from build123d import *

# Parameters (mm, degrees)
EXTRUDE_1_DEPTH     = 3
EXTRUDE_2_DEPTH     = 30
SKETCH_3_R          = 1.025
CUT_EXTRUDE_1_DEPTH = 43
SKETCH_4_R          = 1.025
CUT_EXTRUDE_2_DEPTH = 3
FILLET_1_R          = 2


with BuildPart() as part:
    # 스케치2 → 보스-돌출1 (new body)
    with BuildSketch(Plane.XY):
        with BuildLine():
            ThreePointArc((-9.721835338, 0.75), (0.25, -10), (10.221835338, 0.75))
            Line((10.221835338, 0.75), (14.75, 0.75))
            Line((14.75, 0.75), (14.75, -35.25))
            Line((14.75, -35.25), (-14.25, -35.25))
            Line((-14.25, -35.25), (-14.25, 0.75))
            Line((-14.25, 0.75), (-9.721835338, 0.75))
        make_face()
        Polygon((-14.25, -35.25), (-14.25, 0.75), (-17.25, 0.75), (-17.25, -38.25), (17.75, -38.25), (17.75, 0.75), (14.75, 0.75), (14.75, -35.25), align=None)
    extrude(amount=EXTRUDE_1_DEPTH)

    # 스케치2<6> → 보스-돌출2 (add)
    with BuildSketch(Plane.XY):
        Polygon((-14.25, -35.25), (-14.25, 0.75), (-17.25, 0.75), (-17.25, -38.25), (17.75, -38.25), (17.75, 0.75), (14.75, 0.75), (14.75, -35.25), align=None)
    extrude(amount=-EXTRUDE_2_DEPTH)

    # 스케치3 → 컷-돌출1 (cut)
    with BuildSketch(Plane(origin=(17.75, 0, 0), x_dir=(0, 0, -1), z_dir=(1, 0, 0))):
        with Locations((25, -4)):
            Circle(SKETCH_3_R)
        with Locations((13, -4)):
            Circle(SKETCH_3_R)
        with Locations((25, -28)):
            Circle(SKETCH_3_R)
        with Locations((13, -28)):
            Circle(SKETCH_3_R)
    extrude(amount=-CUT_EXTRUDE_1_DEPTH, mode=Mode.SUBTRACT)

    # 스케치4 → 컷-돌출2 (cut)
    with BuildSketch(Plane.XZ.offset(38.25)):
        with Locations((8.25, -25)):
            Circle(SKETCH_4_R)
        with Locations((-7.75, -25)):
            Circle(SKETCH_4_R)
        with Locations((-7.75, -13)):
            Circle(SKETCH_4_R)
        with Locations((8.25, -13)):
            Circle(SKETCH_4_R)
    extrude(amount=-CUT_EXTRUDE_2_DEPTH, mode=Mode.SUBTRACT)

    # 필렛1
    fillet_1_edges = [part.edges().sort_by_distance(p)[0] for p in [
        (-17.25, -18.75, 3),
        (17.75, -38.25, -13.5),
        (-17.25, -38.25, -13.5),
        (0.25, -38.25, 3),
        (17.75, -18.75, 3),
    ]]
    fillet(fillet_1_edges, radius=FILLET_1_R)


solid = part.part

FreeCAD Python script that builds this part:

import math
import FreeCAD as App
import Part
import Sketcher

V = App.Vector
Q = App.Units.Quantity


def edges_at(feature, points):
    """Names of the edges that pass closest to the given points."""
    edges = feature.Shape.Edges
    near = lambda p: min(range(len(edges)), key=lambda i: edges[i].distToShape(Part.Vertex(*p))[0])
    return sorted({f"Edge{near(p) + 1}" for p in points})

doc = App.newDocument("Part")
body = doc.addObject("PartDesign::Body", "Body")

sketch1 = body.newObject("Sketcher::SketchObject", "Sketch")
sketch1.AttachmentSupport = (doc.getObject("XY_Plane"), [""])
sketch1.MapMode = "FlatFace"
sketch1.addGeometry([
    Part.ArcOfCircle(Part.Circle(V(0, 0, 0), V(0, 0, 1), 10), math.radians(176), math.radians(364)),
    Part.LineSegment(V(-10, 1, 0), V(-17, 1, 0)),
    Part.LineSegment(V(-17, 1, 0), V(-17, -38, 0)),
    Part.LineSegment(V(-17, -38, 0), V(18, -38, 0)),
    Part.LineSegment(V(18, -38, 0), V(18, 1, 0)),
    Part.LineSegment(V(18, 1, 0), V(10, 1, 0)),
], False)
sketch1.addConstraint([
    Sketcher.Constraint("Coincident", 0, 1, 1, 1),
    Sketcher.Constraint("Coincident", 1, 2, 2, 1),
    Sketcher.Constraint("Coincident", 2, 2, 3, 1),
    Sketcher.Constraint("Coincident", 3, 2, 4, 1),
    Sketcher.Constraint("Coincident", 4, 2, 5, 1),
    Sketcher.Constraint("Coincident", 5, 2, 0, 2),
    Sketcher.Constraint("Horizontal", 1),
    Sketcher.Constraint("Vertical", 2),
    Sketcher.Constraint("Horizontal", 3),
    Sketcher.Constraint("Vertical", 4),
    Sketcher.Constraint("Horizontal", 5),
    Sketcher.Constraint("PointOnObject", 0, 3, -1),
    Sketcher.Constraint("Horizontal", 1, 2, 4, 2),
    Sketcher.Constraint("Equal", 1, 5),
    Sketcher.Constraint("Radius", 0, Q("10 mm")),
    Sketcher.Constraint("DistanceX", 3, 1, 3, 2, Q("35 mm")),
    Sketcher.Constraint("DistanceY", 2, 2, 2, 1, Q("39 mm")),
    Sketcher.Constraint("DistanceX", -1, 1, 0, 3, Q("0.25 mm")),
    Sketcher.Constraint("DistanceY", -1, 1, 0, 1, Q("0.75 mm")),
])
pad1 = body.newObject("PartDesign::Pad", "Pad")
pad1.Profile = sketch1
pad1.Length = 3

sketch2 = body.newObject("Sketcher::SketchObject", "Sketch001")
sketch2.AttachmentSupport = (doc.getObject("XY_Plane"), [""])
sketch2.MapMode = "FlatFace"
sketch2.addGeometry([
    Part.LineSegment(V(-14.2, -35.2, 0), V(-14.2, 0.8, 0)),
    Part.LineSegment(V(-14.2, 0.8, 0), V(-17.2, 0.8, 0)),
    Part.LineSegment(V(-17.2, 0.8, 0), V(-17.2, -38.2, 0)),
    Part.LineSegment(V(-17.2, -38.2, 0), V(17.8, -38.2, 0)),
    Part.LineSegment(V(17.8, -38.2, 0), V(17.8, 0.8, 0)),
    Part.LineSegment(V(17.8, 0.8, 0), V(14.8, 0.8, 0)),
    Part.LineSegment(V(14.8, 0.8, 0), V(14.8, -35.2, 0)),
    Part.LineSegment(V(14.8, -35.2, 0), V(-14.2, -35.2, 0)),
], False)
sketch2.addConstraint([
    Sketcher.Constraint("Coincident", 0, 2, 1, 1),
    Sketcher.Constraint("Coincident", 1, 2, 2, 1),
    Sketcher.Constraint("Coincident", 2, 2, 3, 1),
    Sketcher.Constraint("Coincident", 3, 2, 4, 1),
    Sketcher.Constraint("Coincident", 4, 2, 5, 1),
    Sketcher.Constraint("Coincident", 5, 2, 6, 1),
    Sketcher.Constraint("Coincident", 6, 2, 7, 1),
    Sketcher.Constraint("Coincident", 7, 2, 0, 1),
    Sketcher.Constraint("Vertical", 0),
    Sketcher.Constraint("Horizontal", 1),
    Sketcher.Constraint("Vertical", 2),
    Sketcher.Constraint("Horizontal", 3),
    Sketcher.Constraint("Vertical", 4),
    Sketcher.Constraint("Horizontal", 5),
    Sketcher.Constraint("Vertical", 6),
    Sketcher.Constraint("Horizontal", 7),
    Sketcher.Constraint("Horizontal", 1, 2, 4, 2),
    Sketcher.Constraint("Equal", 1, 5),
    Sketcher.Constraint("DistanceX", 1, 2, 1, 1, Q("3 mm")),
    Sketcher.Constraint("DistanceX", 3, 1, 3, 2, Q("35 mm")),
    Sketcher.Constraint("DistanceY", 0, 1, 0, 2, Q("36 mm")),
    Sketcher.Constraint("DistanceY", 2, 2, 2, 1, Q("39 mm")),
    Sketcher.Constraint("DistanceX", 0, 2, -1, 1, Q("14.25 mm")),
    Sketcher.Constraint("DistanceY", -1, 1, 0, 2, Q("0.75 mm")),
])
pad2 = body.newObject("PartDesign::Pad", "Pad001")
pad2.Profile = sketch2
pad2.Length = 30
pad2.Reversed = True

sketch3 = body.newObject("Sketcher::SketchObject", "Sketch002")
sketch3.AttachmentSupport = (doc.getObject("YZ_Plane"), [""])
sketch3.MapMode = "FlatFace"
sketch3.AttachmentOffset = App.Placement(V(0, 0, 17.75), App.Rotation())
sketch3.addGeometry([
    Part.Circle(V(-4, -25, 0), V(0, 0, 1), 1),
    Part.Circle(V(-4, -13, 0), V(0, 0, 1), 1),
    Part.Circle(V(-28, -25, 0), V(0, 0, 1), 1),
    Part.Circle(V(-28, -13, 0), V(0, 0, 1), 1),
], False)
sketch3.addConstraint([
    Sketcher.Constraint("Equal", 0, 1),
    Sketcher.Constraint("Equal", 1, 2),
    Sketcher.Constraint("Equal", 2, 3),
    Sketcher.Constraint("Horizontal", 0, 3, 2, 3),
    Sketcher.Constraint("Horizontal", 1, 3, 3, 3),
    Sketcher.Constraint("Vertical", 0, 3, 1, 3),
    Sketcher.Constraint("Vertical", 2, 3, 3, 3),
    Sketcher.Constraint("Diameter", 0, Q("2.05 mm")),
    Sketcher.Constraint("DistanceX", 0, 3, -1, 1, Q("4 mm")),
    Sketcher.Constraint("DistanceY", 0, 3, -1, 1, Q("25 mm")),
    Sketcher.Constraint("DistanceY", 1, 3, -1, 1, Q("13 mm")),
    Sketcher.Constraint("DistanceX", 2, 3, -1, 1, Q("28 mm")),
])
pocket1 = body.newObject("PartDesign::Pocket", "Pocket")
pocket1.Profile = sketch3
pocket1.Length = 43

sketch4 = body.newObject("Sketcher::SketchObject", "Sketch003")
sketch4.AttachmentSupport = (doc.getObject("XZ_Plane"), [""])
sketch4.MapMode = "FlatFace"
sketch4.AttachmentOffset = App.Placement(V(0, 0, 38.25), App.Rotation())
sketch4.addGeometry([
    Part.Circle(V(8.2, -25, 0), V(0, 0, 1), 1),
    Part.Circle(V(-7.8, -25, 0), V(0, 0, 1), 1),
    Part.Circle(V(-7.8, -13, 0), V(0, 0, 1), 1),
    Part.Circle(V(8.2, -13, 0), V(0, 0, 1), 1),
], False)
sketch4.addConstraint([
    Sketcher.Constraint("Equal", 0, 1),
    Sketcher.Constraint("Equal", 1, 2),
    Sketcher.Constraint("Equal", 2, 3),
    Sketcher.Constraint("Horizontal", 0, 3, 1, 3),
    Sketcher.Constraint("Horizontal", 2, 3, 3, 3),
    Sketcher.Constraint("Vertical", 1, 3, 2, 3),
    Sketcher.Constraint("Vertical", 0, 3, 3, 3),
    Sketcher.Constraint("Diameter", 0, Q("2.05 mm")),
    Sketcher.Constraint("DistanceY", 0, 3, -1, 1, Q("25 mm")),
    Sketcher.Constraint("DistanceY", 2, 3, -1, 1, Q("13 mm")),
    Sketcher.Constraint("DistanceX", 1, 3, 0, 3, Q("16 mm")),
    Sketcher.Constraint("DistanceX", -1, 1, 0, 3, Q("8.25 mm")),
])
pocket2 = body.newObject("PartDesign::Pocket", "Pocket001")
pocket2.Profile = sketch4
pocket2.Length = 3
doc.recompute()

fillet = body.newObject("PartDesign::Fillet", "Fillet")
fillet.Base = (pocket2, edges_at(pocket2, [
    (-17.25, -18.75, 3),
    (17.75, -38.25, -13.5),
    (-17.25, -38.25, -13.5),
    (0.25, -38.25, 3),
    (17.75, -18.75, 3),
]))
fillet.Radius = 2

doc.recompute()
